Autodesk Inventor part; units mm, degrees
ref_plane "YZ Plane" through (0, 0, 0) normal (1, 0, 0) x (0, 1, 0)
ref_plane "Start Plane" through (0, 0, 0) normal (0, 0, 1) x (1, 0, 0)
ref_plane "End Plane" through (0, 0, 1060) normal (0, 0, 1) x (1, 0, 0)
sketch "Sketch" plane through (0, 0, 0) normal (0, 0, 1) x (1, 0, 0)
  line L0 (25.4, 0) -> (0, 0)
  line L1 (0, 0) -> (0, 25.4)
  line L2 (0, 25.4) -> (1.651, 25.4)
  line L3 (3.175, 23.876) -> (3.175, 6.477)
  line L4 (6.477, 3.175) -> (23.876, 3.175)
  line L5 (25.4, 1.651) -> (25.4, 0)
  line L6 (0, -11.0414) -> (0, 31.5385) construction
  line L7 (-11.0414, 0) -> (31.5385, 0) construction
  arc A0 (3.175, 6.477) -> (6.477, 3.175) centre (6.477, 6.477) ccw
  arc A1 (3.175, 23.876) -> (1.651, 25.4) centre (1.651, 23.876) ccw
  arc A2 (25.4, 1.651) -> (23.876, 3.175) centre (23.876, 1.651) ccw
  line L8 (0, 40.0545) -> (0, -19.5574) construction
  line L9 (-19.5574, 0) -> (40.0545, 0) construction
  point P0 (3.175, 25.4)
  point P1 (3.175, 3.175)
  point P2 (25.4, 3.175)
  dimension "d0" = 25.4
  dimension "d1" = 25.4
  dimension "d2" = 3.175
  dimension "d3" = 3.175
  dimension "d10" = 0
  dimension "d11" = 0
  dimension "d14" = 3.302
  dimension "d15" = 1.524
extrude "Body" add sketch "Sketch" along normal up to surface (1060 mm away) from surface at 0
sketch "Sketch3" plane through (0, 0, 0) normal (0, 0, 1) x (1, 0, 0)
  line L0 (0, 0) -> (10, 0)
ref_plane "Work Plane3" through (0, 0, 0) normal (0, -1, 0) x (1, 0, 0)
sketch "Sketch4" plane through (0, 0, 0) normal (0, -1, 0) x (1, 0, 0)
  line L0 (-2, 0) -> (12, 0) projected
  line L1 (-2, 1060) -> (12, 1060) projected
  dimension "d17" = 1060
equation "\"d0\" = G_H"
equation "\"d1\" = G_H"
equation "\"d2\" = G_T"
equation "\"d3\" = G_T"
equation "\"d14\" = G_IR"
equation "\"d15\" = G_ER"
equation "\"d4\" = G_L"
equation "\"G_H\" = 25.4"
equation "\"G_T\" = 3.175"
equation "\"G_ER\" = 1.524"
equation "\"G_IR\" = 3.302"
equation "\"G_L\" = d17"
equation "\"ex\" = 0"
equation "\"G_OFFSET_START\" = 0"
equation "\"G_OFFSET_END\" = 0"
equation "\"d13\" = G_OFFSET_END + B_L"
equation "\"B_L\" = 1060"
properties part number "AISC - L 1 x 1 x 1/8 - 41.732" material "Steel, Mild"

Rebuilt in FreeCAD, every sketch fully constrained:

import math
import FreeCAD as App
import Part
import Sketcher

V = App.Vector
Q = App.Units.Quantity

doc = App.newDocument("Part")
body = doc.addObject("PartDesign::Body", "Body")

sketch1 = body.newObject("Sketcher::SketchObject", "Sketch")
sketch1.AttachmentSupport = (doc.getObject("XY_Plane"), [""])
sketch1.MapMode = "FlatFace"
sketch1.addGeometry([
    Part.LineSegment(V(0, 0, 0), V(25.4, 0, 0)),
    Part.LineSegment(V(25.4, 0, 0), V(25.4, 1.7, 0)),
    Part.ArcOfCircle(Part.Circle(V(23.9, 1.7, 0), V(0, 0, 1), 1.5), math.radians(0), math.radians(90)),
    Part.LineSegment(V(23.9, 3.2, 0), V(6.5, 3.2, 0)),
    Part.ArcOfCircle(Part.Circle(V(6.5, 6.5, 0), V(0, 0, 1), 3.3), math.radians(180), math.radians(270)),
    Part.LineSegment(V(3.2, 6.5, 0), V(3.2, 23.9, 0)),
    Part.ArcOfCircle(Part.Circle(V(1.7, 23.9, 0), V(0, 0, 1), 1.5), math.radians(0), math.radians(90)),
    Part.LineSegment(V(1.7, 25.4, 0), V(0, 25.4, 0)),
    Part.LineSegment(V(0, 25.4, 0), V(0, 0, 0)),
], False)
sketch1.addConstraint([
    Sketcher.Constraint("Coincident", 0, 2, 1, 1),
    Sketcher.Constraint("Tangent", 1, 2, 2, 1),
    Sketcher.Constraint("Tangent", 2, 2, 3, 1),
    Sketcher.Constraint("Tangent", 3, 2, 4, 2),
    Sketcher.Constraint("Tangent", 4, 1, 5, 1),
    Sketcher.Constraint("Tangent", 5, 2, 6, 1),
    Sketcher.Constraint("Tangent", 6, 2, 7, 1),
    Sketcher.Constraint("Coincident", 7, 2, 8, 1),
    Sketcher.Constraint("Coincident", 8, 2, 0, 1),
    Sketcher.Constraint("Horizontal", 0),
    Sketcher.Constraint("Vertical", 1),
    Sketcher.Constraint("Horizontal", 3),
    Sketcher.Constraint("Vertical", 5),
    Sketcher.Constraint("Horizontal", 7),
    Sketcher.Constraint("Vertical", 8),
    Sketcher.Constraint("Coincident", 8, 2, -1, 1),
    Sketcher.Constraint("Equal", 2, 6),
    Sketcher.Constraint("Equal", 7, 1),
    Sketcher.Constraint("Equal", 3, 5),
    Sketcher.Constraint("DistanceX", 0, 1, 0, 2, Q("1 in")),
    Sketcher.Constraint("Radius", 2, Q("0.06 in")),
    Sketcher.Constraint("Radius", 4, Q("0.13 in")),
    Sketcher.Constraint("DistanceY", -1, 1, 2, 2, Q("0.125 in")),
])
pad1 = body.newObject("PartDesign::Pad", "Pad")
pad1.Profile = sketch1
pad1.Length = 1060

doc.recompute()
